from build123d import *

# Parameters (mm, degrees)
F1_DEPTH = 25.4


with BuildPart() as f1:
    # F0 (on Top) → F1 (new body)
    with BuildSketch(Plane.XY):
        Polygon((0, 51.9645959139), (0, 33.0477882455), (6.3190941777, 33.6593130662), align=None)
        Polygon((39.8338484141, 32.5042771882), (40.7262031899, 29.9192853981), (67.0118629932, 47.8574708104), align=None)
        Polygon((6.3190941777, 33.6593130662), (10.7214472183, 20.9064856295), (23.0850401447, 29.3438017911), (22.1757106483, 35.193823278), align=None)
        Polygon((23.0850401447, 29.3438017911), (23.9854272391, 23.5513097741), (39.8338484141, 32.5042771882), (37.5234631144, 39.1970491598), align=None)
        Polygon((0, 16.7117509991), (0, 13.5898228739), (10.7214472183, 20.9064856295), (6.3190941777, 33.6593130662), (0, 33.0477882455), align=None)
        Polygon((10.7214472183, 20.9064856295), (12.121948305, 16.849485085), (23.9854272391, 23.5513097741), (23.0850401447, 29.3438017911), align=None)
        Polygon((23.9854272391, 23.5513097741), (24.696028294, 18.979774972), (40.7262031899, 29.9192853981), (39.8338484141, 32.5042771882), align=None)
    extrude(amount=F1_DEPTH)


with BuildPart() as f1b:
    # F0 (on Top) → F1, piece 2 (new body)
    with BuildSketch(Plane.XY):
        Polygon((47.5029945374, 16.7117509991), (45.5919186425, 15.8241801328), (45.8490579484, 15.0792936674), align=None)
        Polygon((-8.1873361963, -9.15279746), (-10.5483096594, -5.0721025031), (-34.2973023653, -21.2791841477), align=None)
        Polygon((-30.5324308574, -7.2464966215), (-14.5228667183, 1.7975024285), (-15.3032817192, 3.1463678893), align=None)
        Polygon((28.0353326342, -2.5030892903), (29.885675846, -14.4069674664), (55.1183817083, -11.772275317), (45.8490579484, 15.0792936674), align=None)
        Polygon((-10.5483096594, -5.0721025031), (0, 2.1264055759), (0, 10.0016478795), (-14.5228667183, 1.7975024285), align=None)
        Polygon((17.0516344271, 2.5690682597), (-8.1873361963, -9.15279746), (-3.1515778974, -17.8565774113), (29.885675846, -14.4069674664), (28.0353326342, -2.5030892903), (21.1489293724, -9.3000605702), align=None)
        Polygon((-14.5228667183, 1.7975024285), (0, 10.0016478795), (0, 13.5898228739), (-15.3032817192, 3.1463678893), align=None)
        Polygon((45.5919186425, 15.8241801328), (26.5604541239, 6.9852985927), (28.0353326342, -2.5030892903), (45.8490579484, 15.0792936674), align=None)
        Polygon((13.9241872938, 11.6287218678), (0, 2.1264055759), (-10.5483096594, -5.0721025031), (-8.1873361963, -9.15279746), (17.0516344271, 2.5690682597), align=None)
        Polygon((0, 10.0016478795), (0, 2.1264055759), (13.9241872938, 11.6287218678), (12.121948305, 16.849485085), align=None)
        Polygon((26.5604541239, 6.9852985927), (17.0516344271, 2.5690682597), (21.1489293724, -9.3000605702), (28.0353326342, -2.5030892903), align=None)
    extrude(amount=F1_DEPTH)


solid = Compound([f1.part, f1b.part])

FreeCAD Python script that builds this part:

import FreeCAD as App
import Part
import Sketcher
Q = App.Units.Quantity

doc = App.newDocument("Part")
body = doc.addObject("PartDesign::Body", "Body")

# Sketch on XY plane
sketch1 = body.newObject("Sketcher::SketchObject", "Sketch")
sketch1.AttachmentSupport = (doc.getObject("XY_Plane"), [""])
sketch1.MapMode = "FlatFace"
sketch1.addGeometry([
    Part.LineSegment(App.Vector(0, 52, 0), App.Vector(0, 13.6, 0)),  # 0
    Part.LineSegment(App.Vector(0, 13.6, 0), App.Vector(10.7, 20.9, 0)),  # 1
    Part.LineSegment(App.Vector(10.7, 20.9, 0), App.Vector(12.1, 16.8, 0)),  # 2
    Part.LineSegment(App.Vector(12.1, 16.8, 0), App.Vector(24, 23.6, 0)),  # 3
    Part.LineSegment(App.Vector(24, 23.6, 0), App.Vector(24.7, 19, 0)),  # 4
    Part.LineSegment(App.Vector(24.7, 19, 0), App.Vector(40.7, 29.9, 0)),  # 5
    Part.LineSegment(App.Vector(40.7, 29.9, 0), App.Vector(67, 47.9, 0)),  # 6
    Part.LineSegment(App.Vector(67, 47.9, 0), App.Vector(39.8, 32.5, 0)),  # 7
    Part.LineSegment(App.Vector(39.8, 32.5, 0), App.Vector(37.5, 39.2, 0)),  # 8
    Part.LineSegment(App.Vector(37.5, 39.2, 0), App.Vector(23.1, 29.3, 0)),  # 9
    Part.LineSegment(App.Vector(23.1, 29.3, 0), App.Vector(22.2, 35.2, 0)),  # 10
    Part.LineSegment(App.Vector(22.2, 35.2, 0), App.Vector(6.3, 33.7, 0)),  # 11
    Part.LineSegment(App.Vector(6.3, 33.7, 0), App.Vector(0, 52, 0)),  # 12
], False)
sketch1.addConstraint([
    Sketcher.Constraint("Coincident", 0, 2, 1, 1),
    Sketcher.Constraint("Coincident", 1, 2, 2, 1),
    Sketcher.Constraint("Coincident", 2, 2, 3, 1),
    Sketcher.Constraint("Coincident", 3, 2, 4, 1),
    Sketcher.Constraint("Coincident", 4, 2, 5, 1),
    Sketcher.Constraint("Coincident", 5, 2, 6, 1),
    Sketcher.Constraint("Coincident", 6, 2, 7, 1),
    Sketcher.Constraint("Coincident", 7, 2, 8, 1),
    Sketcher.Constraint("Coincident", 8, 2, 9, 1),
    Sketcher.Constraint("Coincident", 9, 2, 10, 1),
    Sketcher.Constraint("Coincident", 10, 2, 11, 1),
    Sketcher.Constraint("Coincident", 11, 2, 12, 1),
    Sketcher.Constraint("Coincident", 12, 2, 0, 1),
    Sketcher.Constraint("Vertical", 0),
    Sketcher.Constraint("PointOnObject", 0, 2, -2),
    Sketcher.Constraint("Parallel", 1, 5),
    Sketcher.Constraint("Parallel", 5, 6),
    Sketcher.Constraint("Parallel", 3, 7),
    Sketcher.Constraint("Parallel", 2, 8),
    Sketcher.Constraint("Parallel", 6, 9),
    Sketcher.Constraint("Parallel", 4, 10),
    Sketcher.Constraint("Parallel", 8, 12),
    Sketcher.Constraint("Distance", 1, Q("12.9801 mm")),
    Sketcher.Constraint("Distance", 5, Q("19.4072 mm")),
    Sketcher.Constraint("DistanceY", -1, 1, 9, 2, Q("29.343802 mm")),
    Sketcher.Constraint("DistanceX", 1, 2, 2, 2, Q("1.400501 mm")),
    Sketcher.Constraint("DistanceY", 2, 2, 1, 2, Q("4.057001 mm")),
    Sketcher.Constraint("DistanceX", 3, 2, 4, 2, Q("0.710601 mm")),
    Sketcher.Constraint("DistanceY", 1, 2, 5, 2, Q("9.0128 mm")),
    Sketcher.Constraint("DistanceX", 1, 2, 7, 2, Q("29.112401 mm")),
    Sketcher.Constraint("DistanceX", 8, 2, 6, 2, Q("29.4884 mm")),
    Sketcher.Constraint("Distance", 7, Q("31.214821 mm")),
    Sketcher.Constraint("Distance", 8, Q("7.08033 mm")),
    Sketcher.Constraint("Distance", 9, Q("17.480118 mm")),
    Sketcher.Constraint("DistanceY", 0, 2, 0, 1, Q("38.374773 mm")),
    Sketcher.Constraint("DistanceX", -1, 1, 2, 2, Q("12.121948 mm")),
    Sketcher.Constraint("DistanceY", -1, 1, 3, 2, Q("23.55131 mm")),
    Sketcher.Constraint("DistanceX", -1, 1, 10, 2, Q("22.175711 mm")),
    Sketcher.Constraint("DistanceY", 11, 2, 10, 2, Q("1.53451 mm")),
])
pad1 = body.newObject("PartDesign::Pad", "Pad")
pad1.Profile = sketch1
pad1.Length = Q("1 in")
body2 = doc.addObject("PartDesign::Body", "Body001")

# Sketch on XY plane
sketch2 = body2.newObject("Sketcher::SketchObject", "Sketch001")
sketch2.AttachmentSupport = (doc.getObject("XY_Plane001"), [""])
sketch2.MapMode = "FlatFace"
sketch2.addGeometry([
    Part.LineSegment(App.Vector(47.502995, 16.711751, 0), App.Vector(45.591919, 15.82418, 0)),  # 0
    Part.LineSegment(App.Vector(45.591919, 15.82418, 0), App.Vector(26.560454, 6.985299, 0)),  # 1
    Part.LineSegment(App.Vector(26.560454, 6.985299, 0), App.Vector(17.051634, 2.569068, 0)),  # 2
    Part.LineSegment(App.Vector(17.051634, 2.569068, 0), App.Vector(13.924187, 11.628722, 0)),  # 3
    Part.LineSegment(App.Vector(13.924187, 11.628722, 0), App.Vector(12.121948, 16.849485, 0)),  # 4
    Part.LineSegment(App.Vector(12.121948, 16.849485, 0), App.Vector(0, 10.001648, 0)),  # 5
    Part.LineSegment(App.Vector(0, 10.001648, 0), App.Vector(0, 13.589823, 0)),  # 6
    Part.LineSegment(App.Vector(0, 13.589823, 0), App.Vector(-30.532431, -7.246497, 0)),  # 7
    Part.LineSegment(App.Vector(-30.532431, -7.246497, 0), App.Vector(-14.522867, 1.797502, 0)),  # 8
    Part.LineSegment(App.Vector(-14.522867, 1.797502, 0), App.Vector(-10.54831, -5.072103, 0)),  # 9
    Part.LineSegment(App.Vector(-10.54831, -5.072103, 0), App.Vector(-34.297302, -21.279184, 0)),  # 10
    Part.LineSegment(App.Vector(-34.297302, -21.279184, 0), App.Vector(-8.187336, -9.152797, 0)),  # 11
    Part.LineSegment(App.Vector(-8.187336, -9.152797, 0), App.Vector(-3.151578, -17.856577, 0)),  # 12
    Part.LineSegment(App.Vector(-3.151578, -17.856577, 0), App.Vector(29.885676, -14.406967, 0)),  # 13
    Part.LineSegment(App.Vector(29.885676, -14.406967, 0), App.Vector(55.118382, -11.772275, 0)),  # 14
    Part.LineSegment(App.Vector(55.118382, -11.772275, 0), App.Vector(45.849058, 15.079294, 0)),  # 15
    Part.LineSegment(App.Vector(45.849058, 15.079294, 0), App.Vector(47.502995, 16.711751, 0)),  # 16
], False)
sketch2.addConstraint([
    Sketcher.Constraint("Coincident", 0, 2, 1, 1),
    Sketcher.Constraint("Coincident", 1, 2, 2, 1),
    Sketcher.Constraint("Coincident", 2, 2, 3, 1),
    Sketcher.Constraint("Coincident", 3, 2, 4, 1),
    Sketcher.Constraint("Coincident", 4, 2, 5, 1),
    Sketcher.Constraint("Coincident", 5, 2, 6, 1),
    Sketcher.Constraint("Coincident", 6, 2, 7, 1),
    Sketcher.Constraint("Coincident", 7, 2, 8, 1),
    Sketcher.Constraint("Coincident", 8, 2, 9, 1),
    Sketcher.Constraint("Coincident", 9, 2, 10, 1),
    Sketcher.Constraint("Coincident", 10, 2, 11, 1),
    Sketcher.Constraint("Coincident", 11, 2, 12, 1),
    Sketcher.Constraint("Coincident", 12, 2, 13, 1),
    Sketcher.Constraint("Coincident", 13, 2, 14, 1),
    Sketcher.Constraint("Coincident", 14, 2, 15, 1),
    Sketcher.Constraint("Coincident", 15, 2, 16, 1),
    Sketcher.Constraint("Coincident", 16, 2, 0, 1),
    Sketcher.Constraint("Vertical", 6),
    Sketcher.Constraint("PointOnObject", 5, 2, -2),
    Sketcher.Constraint("DistanceY", 5, 2, 4, 2, Q("0.2695999 in")),
    Sketcher.Constraint("Distance", 7, Q("36.964599 mm")),
    Sketcher.Constraint("DistanceY", -1, 1, 1, 2, Q("6.985299 mm")),
    Sketcher.Constraint("DistanceY", 3, 2, 6, 2, Q("1.961101 mm")),
    Sketcher.Constraint("DistanceY", 7, 2, 8, 2, Q("9.043999 mm")),
    Sketcher.Constraint("DistanceY", 11, 2, 8, 2, Q("10.9503 mm")),
    Sketcher.Constraint("Distance", 0, Q("2.107129 mm")),
    Sketcher.Constraint("Distance", 2, Q("10.484309 mm")),
    Sketcher.Constraint("Distance", 3, Q("9.584271 mm")),
    Sketcher.Constraint("Distance", 4, Q("5.523082 mm")),
    Sketcher.Constraint("Distance", 16, Q("2.323881 mm")),
    Sketcher.Constraint("DistanceY", 6, 1, 6, 2, Q("3.588175 mm")),
    Sketcher.Constraint("DistanceX", -1, 1, 0, 2, Q("45.591919 mm")),
    Sketcher.Constraint("DistanceY", -1, 1, 0, 2, Q("15.82418 mm")),
    Sketcher.Constraint("DistanceY", -1, 1, 2, 2, Q("2.569068 mm")),
    Sketcher.Constraint("DistanceY", -1, 1, 3, 2, Q("11.628722 mm")),
    Sketcher.Constraint("DistanceX", -1, 1, 4, 2, Q("12.121948 mm")),
    Sketcher.Constraint("DistanceX", 7, 2, -1, 1, Q("30.532431 mm")),
    Sketcher.Constraint("DistanceX", 9, 2, -1, 1, Q("10.54831 mm")),
    Sketcher.Constraint("DistanceX", -1, 1, 14, 2, Q("55.118382 mm")),
    Sketcher.Constraint("DistanceY", -1, 1, 16, 2, Q("16.711751 mm")),
    Sketcher.Constraint("DistanceY", 9, 2, 5, 2, Q("15.07375 mm")),
    Sketcher.Constraint("DistanceX", 10, 2, 7, 2, Q("3.764872 mm")),
    Sketcher.Constraint("DistanceY", 10, 2, 9, 2, Q("16.207082 mm")),
    Sketcher.Constraint("DistanceX", 8, 2, 11, 2, Q("6.335531 mm")),
    Sketcher.Constraint("DistanceX", 11, 2, 12, 2, Q("5.035758 mm")),
    Sketcher.Constraint("DistanceY", 12, 2, 11, 2, Q("8.70378 mm")),
    Sketcher.Constraint("DistanceX", 9, 2, 12, 2, Q("7.396732 mm")),
    Sketcher.Constraint("DistanceX", 2, 2, 13, 2, Q("12.834041 mm")),
    Sketcher.Constraint("DistanceY", 13, 2, 3, 2, Q("26.035689 mm")),
    Sketcher.Constraint("DistanceX", 0, 2, 15, 2, Q("0.257139 mm")),
    Sketcher.Constraint("DistanceY", 14, 2, 15, 2, Q("26.851569 mm")),
])
pad2 = body2.newObject("PartDesign::Pad", "Pad001")
pad2.Profile = sketch2
pad2.Length = Q("1 in")

doc.recompute()
